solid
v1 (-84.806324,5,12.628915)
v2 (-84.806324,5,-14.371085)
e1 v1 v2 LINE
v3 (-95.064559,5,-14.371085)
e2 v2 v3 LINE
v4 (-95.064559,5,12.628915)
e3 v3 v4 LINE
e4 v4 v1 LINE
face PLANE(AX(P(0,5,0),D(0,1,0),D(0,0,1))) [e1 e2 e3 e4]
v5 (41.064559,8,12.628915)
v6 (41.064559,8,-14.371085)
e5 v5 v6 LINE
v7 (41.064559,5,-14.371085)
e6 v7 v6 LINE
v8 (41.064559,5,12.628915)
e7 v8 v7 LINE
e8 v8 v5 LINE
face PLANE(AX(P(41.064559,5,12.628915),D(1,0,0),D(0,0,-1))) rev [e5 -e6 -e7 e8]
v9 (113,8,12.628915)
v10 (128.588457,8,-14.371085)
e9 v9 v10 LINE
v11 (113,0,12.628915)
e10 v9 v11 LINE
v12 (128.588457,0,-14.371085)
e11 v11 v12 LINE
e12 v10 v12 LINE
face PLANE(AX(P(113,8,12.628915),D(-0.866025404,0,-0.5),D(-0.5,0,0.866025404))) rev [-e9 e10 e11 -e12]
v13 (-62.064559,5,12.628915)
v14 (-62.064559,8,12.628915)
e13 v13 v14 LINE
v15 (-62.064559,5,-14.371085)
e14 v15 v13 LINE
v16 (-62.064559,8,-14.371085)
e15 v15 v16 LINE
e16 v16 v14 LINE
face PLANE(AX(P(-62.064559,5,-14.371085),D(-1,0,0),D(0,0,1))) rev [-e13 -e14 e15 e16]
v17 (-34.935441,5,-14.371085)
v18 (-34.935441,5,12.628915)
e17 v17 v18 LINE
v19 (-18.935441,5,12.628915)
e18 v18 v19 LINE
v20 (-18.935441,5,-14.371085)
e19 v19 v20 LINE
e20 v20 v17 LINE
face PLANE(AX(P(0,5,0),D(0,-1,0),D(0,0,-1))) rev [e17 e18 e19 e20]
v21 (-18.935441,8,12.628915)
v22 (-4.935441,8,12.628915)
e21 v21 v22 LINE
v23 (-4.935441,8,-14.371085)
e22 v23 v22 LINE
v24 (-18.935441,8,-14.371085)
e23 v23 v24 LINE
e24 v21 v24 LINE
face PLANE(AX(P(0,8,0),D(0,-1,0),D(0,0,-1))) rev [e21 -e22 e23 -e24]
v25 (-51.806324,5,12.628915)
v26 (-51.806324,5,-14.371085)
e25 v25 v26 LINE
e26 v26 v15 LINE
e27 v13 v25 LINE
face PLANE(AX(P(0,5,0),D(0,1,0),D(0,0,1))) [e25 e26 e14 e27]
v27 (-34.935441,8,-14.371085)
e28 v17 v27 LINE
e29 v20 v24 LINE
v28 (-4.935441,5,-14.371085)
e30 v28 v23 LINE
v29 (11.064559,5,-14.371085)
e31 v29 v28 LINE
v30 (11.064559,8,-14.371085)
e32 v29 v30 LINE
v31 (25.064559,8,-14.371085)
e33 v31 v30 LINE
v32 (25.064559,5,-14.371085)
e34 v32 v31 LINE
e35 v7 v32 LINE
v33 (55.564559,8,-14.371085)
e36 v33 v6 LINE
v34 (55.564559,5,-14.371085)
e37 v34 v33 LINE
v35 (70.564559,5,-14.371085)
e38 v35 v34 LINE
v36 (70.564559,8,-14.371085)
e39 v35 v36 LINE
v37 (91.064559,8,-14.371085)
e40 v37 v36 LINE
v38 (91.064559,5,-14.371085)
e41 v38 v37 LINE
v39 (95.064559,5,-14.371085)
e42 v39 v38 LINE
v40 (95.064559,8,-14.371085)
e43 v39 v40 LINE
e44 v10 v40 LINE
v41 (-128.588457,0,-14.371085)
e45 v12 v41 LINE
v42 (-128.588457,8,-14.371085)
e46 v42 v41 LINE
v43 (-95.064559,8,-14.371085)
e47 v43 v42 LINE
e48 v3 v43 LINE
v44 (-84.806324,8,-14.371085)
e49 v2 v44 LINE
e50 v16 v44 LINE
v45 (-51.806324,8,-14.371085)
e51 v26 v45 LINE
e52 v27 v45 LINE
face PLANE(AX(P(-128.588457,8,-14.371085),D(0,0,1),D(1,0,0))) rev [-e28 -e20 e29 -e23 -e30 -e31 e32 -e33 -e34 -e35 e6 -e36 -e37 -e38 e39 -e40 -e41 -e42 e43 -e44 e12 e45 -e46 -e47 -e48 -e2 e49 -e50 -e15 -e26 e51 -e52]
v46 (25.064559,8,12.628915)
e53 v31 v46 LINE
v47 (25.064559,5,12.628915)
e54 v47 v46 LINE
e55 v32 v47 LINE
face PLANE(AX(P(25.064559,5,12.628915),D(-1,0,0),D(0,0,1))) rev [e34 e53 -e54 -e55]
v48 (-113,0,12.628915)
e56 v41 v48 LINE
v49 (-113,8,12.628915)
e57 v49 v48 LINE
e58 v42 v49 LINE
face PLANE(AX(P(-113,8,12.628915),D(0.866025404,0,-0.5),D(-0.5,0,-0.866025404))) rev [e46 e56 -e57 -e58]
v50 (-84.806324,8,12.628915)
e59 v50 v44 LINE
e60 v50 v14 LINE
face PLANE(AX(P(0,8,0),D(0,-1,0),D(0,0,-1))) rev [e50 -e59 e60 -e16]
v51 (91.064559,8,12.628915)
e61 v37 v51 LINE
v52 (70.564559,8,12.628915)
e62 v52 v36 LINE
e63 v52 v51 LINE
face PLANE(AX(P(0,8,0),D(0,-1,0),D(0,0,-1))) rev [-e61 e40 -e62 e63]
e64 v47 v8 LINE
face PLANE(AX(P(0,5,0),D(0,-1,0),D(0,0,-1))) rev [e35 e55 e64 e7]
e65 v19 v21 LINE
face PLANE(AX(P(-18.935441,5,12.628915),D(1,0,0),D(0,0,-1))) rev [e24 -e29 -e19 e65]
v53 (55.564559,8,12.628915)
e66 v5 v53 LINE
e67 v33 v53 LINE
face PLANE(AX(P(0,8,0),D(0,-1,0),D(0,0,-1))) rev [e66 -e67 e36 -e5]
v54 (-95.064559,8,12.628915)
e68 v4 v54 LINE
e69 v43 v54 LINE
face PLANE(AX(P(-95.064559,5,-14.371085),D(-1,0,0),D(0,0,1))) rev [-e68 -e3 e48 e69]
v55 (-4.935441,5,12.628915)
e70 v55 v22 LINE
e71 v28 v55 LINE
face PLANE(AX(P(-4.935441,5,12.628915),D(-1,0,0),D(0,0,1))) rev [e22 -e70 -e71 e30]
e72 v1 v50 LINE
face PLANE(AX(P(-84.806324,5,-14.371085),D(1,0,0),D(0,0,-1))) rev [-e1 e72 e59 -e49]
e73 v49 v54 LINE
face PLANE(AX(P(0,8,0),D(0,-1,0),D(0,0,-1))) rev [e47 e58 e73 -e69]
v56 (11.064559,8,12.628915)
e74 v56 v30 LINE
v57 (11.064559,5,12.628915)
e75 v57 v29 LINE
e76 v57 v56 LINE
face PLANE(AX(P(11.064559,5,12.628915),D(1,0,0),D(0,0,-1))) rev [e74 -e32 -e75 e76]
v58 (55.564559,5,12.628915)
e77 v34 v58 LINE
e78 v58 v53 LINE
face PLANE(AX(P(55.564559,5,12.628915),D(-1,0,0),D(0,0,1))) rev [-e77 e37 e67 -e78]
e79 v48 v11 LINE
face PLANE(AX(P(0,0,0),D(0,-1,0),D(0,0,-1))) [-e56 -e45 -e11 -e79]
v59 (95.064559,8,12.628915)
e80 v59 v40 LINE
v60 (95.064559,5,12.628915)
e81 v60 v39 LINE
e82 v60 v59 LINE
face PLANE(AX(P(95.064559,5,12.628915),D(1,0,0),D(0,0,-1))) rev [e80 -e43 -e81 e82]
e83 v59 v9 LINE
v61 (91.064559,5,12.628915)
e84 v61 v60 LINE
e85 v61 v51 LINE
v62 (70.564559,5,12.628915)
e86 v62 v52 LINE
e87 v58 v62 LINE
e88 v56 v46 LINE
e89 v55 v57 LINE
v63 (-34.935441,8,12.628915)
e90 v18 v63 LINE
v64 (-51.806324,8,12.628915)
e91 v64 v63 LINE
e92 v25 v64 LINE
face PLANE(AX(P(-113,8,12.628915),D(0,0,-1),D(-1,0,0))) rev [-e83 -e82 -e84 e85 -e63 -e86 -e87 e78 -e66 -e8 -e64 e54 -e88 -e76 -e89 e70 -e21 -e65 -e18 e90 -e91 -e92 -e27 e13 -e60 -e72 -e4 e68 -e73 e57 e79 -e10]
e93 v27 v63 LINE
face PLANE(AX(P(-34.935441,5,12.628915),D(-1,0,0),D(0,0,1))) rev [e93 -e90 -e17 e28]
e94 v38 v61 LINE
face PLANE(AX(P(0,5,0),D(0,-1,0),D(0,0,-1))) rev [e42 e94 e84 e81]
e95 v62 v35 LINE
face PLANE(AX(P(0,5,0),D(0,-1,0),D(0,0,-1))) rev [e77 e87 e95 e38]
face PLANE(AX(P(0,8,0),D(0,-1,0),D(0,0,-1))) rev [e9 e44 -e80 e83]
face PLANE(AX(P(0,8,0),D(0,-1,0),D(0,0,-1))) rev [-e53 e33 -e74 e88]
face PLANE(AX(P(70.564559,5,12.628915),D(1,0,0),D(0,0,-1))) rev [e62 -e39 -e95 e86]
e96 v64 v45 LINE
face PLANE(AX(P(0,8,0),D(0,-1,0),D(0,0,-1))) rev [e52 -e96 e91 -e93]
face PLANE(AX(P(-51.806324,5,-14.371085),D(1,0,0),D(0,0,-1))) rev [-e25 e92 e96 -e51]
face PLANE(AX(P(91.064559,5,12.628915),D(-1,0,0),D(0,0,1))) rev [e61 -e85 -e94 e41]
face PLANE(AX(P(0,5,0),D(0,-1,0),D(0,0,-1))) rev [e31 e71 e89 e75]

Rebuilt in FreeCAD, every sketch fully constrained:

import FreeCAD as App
import Part
import Sketcher
Q = App.Units.Quantity


def add_polygon(sketch, points):
    """Adds a closed chain of lines whose ends are joined by coincident constraints."""
    first, n = sketch.GeometryCount, len(points)
    for a, b in zip(points, points[1:] + points[:1]):
        sketch.addGeometry(Part.LineSegment(App.Vector(*a, 0), App.Vector(*b, 0)), False)
    for i in range(n):
        sketch.addConstraint(Sketcher.Constraint("Coincident", first + i, 2, first + (i + 1) % n, 1))

doc = App.newDocument("Part")
params = doc.addObject("Spreadsheet::Sheet", "Params")
for row, (alias, value) in enumerate([
    ("sketch1_width", "226 mm"),
    ("pad1_length", "8 mm"),
    ("sketch2_width", "16 mm"),
    ("sketch2_width2", "15 mm"),
    ("sketch2_width3", "4 mm"),
    ("sketch2_height", "27 mm"),
    ("pocket1_length", "3 mm"),
], start=1):
    params.set(f"A{row}", alias)
    params.set(f"B{row}", "=" + value)
    params.setAlias(f"B{row}", alias)

body = doc.addObject("PartDesign::Body", "Body")

# Sketch on XZ plane
sketch1 = body.newObject("Sketcher::SketchObject", "Sketch")
sketch1.AttachmentSupport = (doc.getObject("XZ_Plane"), [""])
sketch1.MapMode = "FlatFace"
add_polygon(sketch1, [(-113, 13), (113, 13), (129, -14), (-129, -14)])  # lines 0-3
sketch1.addConstraint([
    Sketcher.Constraint("Horizontal", 0),
    Sketcher.Constraint("Horizontal", 2),
    Sketcher.Constraint("Equal", 1, 3),
    Sketcher.Constraint("DistanceX", 0, 1, 0, 2, Q("226 mm")),
    Sketcher.Constraint("Angle", 1, Q("-60 deg")),
    Sketcher.Constraint("DistanceX", -1, 1, 0, 2, Q("113 mm")),
    Sketcher.Constraint("DistanceY", 1, 2, 0, 2, Q("27 mm")),
    Sketcher.Constraint("DistanceY", -1, 1, 0, 2, Q("12.628915 mm")),
])
sketch1.setExpression("Constraints[7]", "Params.sketch1_width")
pad1 = body.newObject("PartDesign::Pad", "Pad")
pad1.Profile = sketch1
pad1.setExpression("Length", "Params.pad1_length")
pad1.Reversed = True

# Sketch on XZ plane
sketch2 = body.newObject("Sketcher::SketchObject", "Sketch001")
sketch2.AttachmentSupport = (doc.getObject("XZ_Plane"), [""])
sketch2.MapMode = "FlatFace"
sketch2.AttachmentOffset = App.Placement(App.Vector(0, 0, -8), App.Rotation())
add_polygon(sketch2, [(-62.1, -14.4), (-62.1, 12.6), (-51.8, 12.6), (-51.8, -14.4)])  # lines 0-3
add_polygon(sketch2, [(-95.1, -14.4), (-95.1, 12.6), (-84.8, 12.6), (-84.8, -14.4)])  # lines 4-7
add_polygon(sketch2, [(-34.9, -14.4), (-34.9, 12.6), (-18.9, 12.6), (-18.9, -14.4)])  # lines 8-11
add_polygon(sketch2, [(-4.9, -14.4), (-4.9, 12.6), (11.1, 12.6), (11.1, -14.4)])  # lines 12-15
add_polygon(sketch2, [(25.1, -14.4), (25.1, 12.6), (41.1, 12.6), (41.1, -14.4)])  # lines 16-19
add_polygon(sketch2, [(55.6, -14.4), (55.6, 12.6), (70.6, 12.6), (70.6, -14.4)])  # lines 20-23
add_polygon(sketch2, [(91.1, -14.4), (91.1, 12.6), (95.1, 12.6), (95.1, -14.4)])  # lines 24-27
sketch2.addConstraint([
    Sketcher.Constraint("Vertical", 0),
    Sketcher.Constraint("Horizontal", 1),
    Sketcher.Constraint("Vertical", 2),
    Sketcher.Constraint("Horizontal", 3),
    Sketcher.Constraint("Vertical", 4),
    Sketcher.Constraint("Horizontal", 5),
    Sketcher.Constraint("Vertical", 6),
    Sketcher.Constraint("Horizontal", 7),
    Sketcher.Constraint("Vertical", 8),
    Sketcher.Constraint("Horizontal", 9),
    Sketcher.Constraint("Vertical", 10),
    Sketcher.Constraint("Horizontal", 11),
    Sketcher.Constraint("Vertical", 12),
    Sketcher.Constraint("Horizontal", 13),
    Sketcher.Constraint("Vertical", 14),
    Sketcher.Constraint("Horizontal", 15),
    Sketcher.Constraint("Vertical", 16),
    Sketcher.Constraint("Horizontal", 17),
    Sketcher.Constraint("Vertical", 18),
    Sketcher.Constraint("Horizontal", 19),
    Sketcher.Constraint("Vertical", 20),
    Sketcher.Constraint("Horizontal", 21),
    Sketcher.Constraint("Vertical", 22),
    Sketcher.Constraint("Horizontal", 23),
    Sketcher.Constraint("Vertical", 24),
    Sketcher.Constraint("Horizontal", 25),
    Sketcher.Constraint("Vertical", 26),
    Sketcher.Constraint("Horizontal", 27),
    Sketcher.Constraint("Symmetric", 4, 2, 25, 2, -2),
    Sketcher.Constraint("Horizontal", 1, 2, 4, 2),
    Sketcher.Constraint("Horizontal", 3, 2, 6, 2),
    Sketcher.Constraint("Horizontal", 5, 2, 8, 2),
    Sketcher.Constraint("Horizontal", 7, 2, 10, 2),
    Sketcher.Constraint("Horizontal", 9, 2, 12, 2),
    Sketcher.Constraint("Horizontal", 11, 2, 14, 2),
    Sketcher.Constraint("Horizontal", 13, 2, 16, 2),
    Sketcher.Constraint("Horizontal", 15, 2, 18, 2),
    Sketcher.Constraint("Horizontal", 17, 2, 20, 2),
    Sketcher.Constraint("Horizontal", 19, 2, 22, 2),
    Sketcher.Constraint("Horizontal", 23, 2, 26, 2),
    Sketcher.Constraint("Equal", 3, 5),
    Sketcher.Constraint("Equal", 11, 13),
    Sketcher.Constraint("Equal", 15, 17),
    Sketcher.Constraint("DistanceX", 9, 1, 9, 2, Q("16 mm")),
    Sketcher.Constraint("DistanceX", 21, 1, 21, 2, Q("15 mm")),
    Sketcher.Constraint("DistanceX", 25, 1, 25, 2, Q("4 mm")),
    Sketcher.Constraint("DistanceY", 0, 1, 0, 2, Q("27 mm")),
    Sketcher.Constraint("DistanceX", 4, 2, 0, 2, Q("33 mm")),
    Sketcher.Constraint("DistanceX", 9, 2, 12, 2, Q("14 mm")),
    Sketcher.Constraint("DistanceX", 13, 2, 16, 2, Q("14 mm")),
    Sketcher.Constraint("DistanceX", 17, 2, 24, 2, Q("50 mm")),
    Sketcher.Constraint("DistanceX", 17, 2, 20, 2, Q("14.5 mm")),
    Sketcher.Constraint("DistanceX", 1, 1, 1, 2, Q("10.258235 mm")),
    Sketcher.Constraint("DistanceX", 0, 2, -1, 1, Q("62.064559 mm")),
    Sketcher.Constraint("DistanceY", -1, 1, 0, 2, Q("12.628915 mm")),
])
sketch2.setExpression("Constraints[71]", "Params.sketch2_width")
sketch2.setExpression("Constraints[72]", "Params.sketch2_width2")
sketch2.setExpression("Constraints[73]", "Params.sketch2_width3")
sketch2.setExpression("Constraints[74]", "Params.sketch2_height")
pocket1 = body.newObject("PartDesign::Pocket", "Pocket")
pocket1.Profile = sketch2
pocket1.setExpression("Length", "Params.pocket1_length")
pocket1.Reversed = True

doc.recompute()
